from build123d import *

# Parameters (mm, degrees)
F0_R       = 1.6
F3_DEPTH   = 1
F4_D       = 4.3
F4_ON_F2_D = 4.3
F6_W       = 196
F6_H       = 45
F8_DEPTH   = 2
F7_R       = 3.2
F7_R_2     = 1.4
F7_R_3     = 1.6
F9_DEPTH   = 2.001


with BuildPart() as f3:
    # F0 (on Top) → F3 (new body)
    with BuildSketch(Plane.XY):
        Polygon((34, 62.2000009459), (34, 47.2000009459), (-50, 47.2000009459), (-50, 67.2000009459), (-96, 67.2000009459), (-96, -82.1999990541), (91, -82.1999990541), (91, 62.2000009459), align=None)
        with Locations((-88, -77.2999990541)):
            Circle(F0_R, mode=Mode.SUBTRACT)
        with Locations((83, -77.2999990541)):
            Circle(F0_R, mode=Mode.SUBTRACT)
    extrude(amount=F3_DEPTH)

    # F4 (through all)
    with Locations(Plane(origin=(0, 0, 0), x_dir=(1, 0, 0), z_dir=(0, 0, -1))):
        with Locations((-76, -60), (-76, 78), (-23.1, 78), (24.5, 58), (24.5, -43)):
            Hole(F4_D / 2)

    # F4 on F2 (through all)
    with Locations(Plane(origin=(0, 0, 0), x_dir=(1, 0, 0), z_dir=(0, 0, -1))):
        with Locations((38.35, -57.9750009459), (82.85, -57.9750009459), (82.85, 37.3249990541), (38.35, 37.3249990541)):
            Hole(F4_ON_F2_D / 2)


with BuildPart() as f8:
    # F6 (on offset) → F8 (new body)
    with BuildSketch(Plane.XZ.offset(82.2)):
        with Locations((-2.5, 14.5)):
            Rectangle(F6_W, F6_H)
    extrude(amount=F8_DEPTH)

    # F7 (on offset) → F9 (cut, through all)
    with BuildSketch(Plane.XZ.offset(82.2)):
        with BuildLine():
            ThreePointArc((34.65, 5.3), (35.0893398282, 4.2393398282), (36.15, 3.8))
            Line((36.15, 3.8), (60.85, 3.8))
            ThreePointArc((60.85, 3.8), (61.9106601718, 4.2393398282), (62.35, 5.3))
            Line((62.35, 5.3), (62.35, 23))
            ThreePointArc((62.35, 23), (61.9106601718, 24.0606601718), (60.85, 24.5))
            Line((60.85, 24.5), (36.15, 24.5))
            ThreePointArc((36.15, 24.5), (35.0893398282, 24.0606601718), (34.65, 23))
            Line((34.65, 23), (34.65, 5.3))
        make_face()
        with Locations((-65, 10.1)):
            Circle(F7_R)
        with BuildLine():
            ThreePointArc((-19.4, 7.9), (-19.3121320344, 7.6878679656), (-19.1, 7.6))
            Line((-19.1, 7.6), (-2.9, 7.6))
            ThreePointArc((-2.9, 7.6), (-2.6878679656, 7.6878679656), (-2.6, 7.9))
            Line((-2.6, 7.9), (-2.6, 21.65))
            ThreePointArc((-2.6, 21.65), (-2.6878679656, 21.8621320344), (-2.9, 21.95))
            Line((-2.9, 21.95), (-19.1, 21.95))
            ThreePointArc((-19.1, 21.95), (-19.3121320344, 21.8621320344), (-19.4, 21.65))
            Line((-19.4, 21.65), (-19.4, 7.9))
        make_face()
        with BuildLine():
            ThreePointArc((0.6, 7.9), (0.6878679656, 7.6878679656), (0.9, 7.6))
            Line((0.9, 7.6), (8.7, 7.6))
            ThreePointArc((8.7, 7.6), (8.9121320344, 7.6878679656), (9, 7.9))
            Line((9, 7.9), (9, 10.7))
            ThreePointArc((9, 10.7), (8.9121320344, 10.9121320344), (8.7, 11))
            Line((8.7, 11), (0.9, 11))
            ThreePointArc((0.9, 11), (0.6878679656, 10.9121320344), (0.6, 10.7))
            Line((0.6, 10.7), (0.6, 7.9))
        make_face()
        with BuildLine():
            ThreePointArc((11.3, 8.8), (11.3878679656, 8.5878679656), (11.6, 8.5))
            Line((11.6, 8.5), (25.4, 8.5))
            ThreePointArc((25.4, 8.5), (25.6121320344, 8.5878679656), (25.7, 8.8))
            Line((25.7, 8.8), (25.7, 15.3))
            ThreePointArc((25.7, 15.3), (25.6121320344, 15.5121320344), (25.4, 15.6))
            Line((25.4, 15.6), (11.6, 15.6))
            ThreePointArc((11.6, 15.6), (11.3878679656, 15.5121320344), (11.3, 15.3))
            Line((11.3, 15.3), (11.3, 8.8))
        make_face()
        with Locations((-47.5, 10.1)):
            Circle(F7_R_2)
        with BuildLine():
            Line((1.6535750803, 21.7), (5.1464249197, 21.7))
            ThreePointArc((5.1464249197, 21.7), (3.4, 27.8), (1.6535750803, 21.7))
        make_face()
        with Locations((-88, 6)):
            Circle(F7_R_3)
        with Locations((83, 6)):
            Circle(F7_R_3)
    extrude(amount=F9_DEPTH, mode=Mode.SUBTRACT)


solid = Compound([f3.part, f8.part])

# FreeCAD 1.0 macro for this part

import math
import FreeCAD as App
import Part
import Sketcher
from FreeCAD import Vector


def add_polygon(sketch, points):
    """Adds a closed chain of lines whose ends are joined by coincident constraints."""
    first, n = sketch.GeometryCount, len(points)
    for a, b in zip(points, points[1:] + points[:1]):
        sketch.addGeometry(Part.LineSegment(App.Vector(*a, 0), App.Vector(*b, 0)), False)
    for i in range(n):
        sketch.addConstraint(Sketcher.Constraint("Coincident", first + i, 2, first + (i + 1) % n, 1))

doc = App.newDocument("Part")
params = doc.addObject("Spreadsheet::Sheet", "Params")
for row, (alias, value) in enumerate([
    ("sketch1_diameter", "3.2 mm"),
    ("sketch1_width", "84 mm"),
    ("sketch1_width2", "46 mm"),
    ("sketch1_width3", "187 mm"),
    ("sketch1_height", "15 mm"),
    ("pad1_length", "1 mm"),
    ("sketch2_diameter", "4.3 mm"),
    ("hole_diameter", "4.3 mm"),
    ("sketch3_diameter", "4.3 mm"),
    ("hole2_diameter", "4.3 mm"),
    ("sketch4_width", "196 mm"),
    ("sketch4_height", "45 mm"),
    ("pad2_length", "2 mm"),
    ("sketch5_diameter", "6.4 mm"),
    ("sketch5_diameter2", "2.8 mm"),
    ("sketch5_diameter3", "3.2 mm"),
    ("sketch5_radius", "1.5 mm"),
    ("sketch5_radius2", "0.3 mm"),
], start=1):
    params.set(f"A{row}", alias)
    params.set(f"B{row}", "=" + value)
    params.setAlias(f"B{row}", alias)

body = doc.addObject("PartDesign::Body", "Body")

# Sketch on XY plane
sketch1 = body.newObject("Sketcher::SketchObject", "Sketch")
sketch1.AttachmentSupport = (doc.getObject("XY_Plane"), [""])
sketch1.MapMode = "FlatFace"
add_polygon(sketch1, [(34, 62.200001), (34, 47.200001), (-50, 47.200001), (-50, 67.200001), (-96, 67.200001), (-96, -82.199999), (91, -82.199999), (91, 62.200001)])  # lines 0-7
sketch1.addGeometry(Part.Circle(Vector(-88, -77.299999, 0), Vector(0, 0, 1), 1.6), False)  # 8
sketch1.addGeometry(Part.Circle(Vector(83, -77.299999, 0), Vector(0, 0, 1), 1.6), False)  # 9
sketch1.addConstraint(Sketcher.Constraint("Vertical", 0))
sketch1.addConstraint(Sketcher.Constraint("Horizontal", 1))
sketch1.addConstraint(Sketcher.Constraint("Vertical", 2))
sketch1.addConstraint(Sketcher.Constraint("Horizontal", 3))
sketch1.addConstraint(Sketcher.Constraint("Vertical", 4))
sketch1.addConstraint(Sketcher.Constraint("Horizontal", 5))
sketch1.addConstraint(Sketcher.Constraint("Vertical", 6))
sketch1.addConstraint(Sketcher.Constraint("Horizontal", 7))
sketch1.addConstraint(Sketcher.Constraint("Equal", 8, 9))
sketch1.addConstraint(Sketcher.Constraint("Horizontal", 8, 3, 9, 3))
sketch1.addConstraint(Sketcher.Constraint("Diameter", 8, 3.2))
sketch1.addConstraint(Sketcher.Constraint("DistanceX", 1, 2, 1, 1, 84.0))
sketch1.addConstraint(Sketcher.Constraint("DistanceX", 3, 2, 3, 1, 46.0))
sketch1.addConstraint(Sketcher.Constraint("DistanceX", 5, 1, 5, 2, 187.0))
sketch1.addConstraint(Sketcher.Constraint("DistanceY", 0, 2, 0, 1, 15.0))
sketch1.addConstraint(Sketcher.Constraint("DistanceY", 2, 1, 2, 2, 20.0))
sketch1.addConstraint(Sketcher.Constraint("DistanceY", 4, 2, 4, 1, 149.4))
sketch1.addConstraint(Sketcher.Constraint("DistanceX", 8, 3, -1, 1, 88.0))
sketch1.addConstraint(Sketcher.Constraint("DistanceX", -1, 1, 9, 3, 83.0))
sketch1.addConstraint(Sketcher.Constraint("DistanceX", -1, 1, 0, 2, 34.0))
sketch1.addConstraint(Sketcher.Constraint("DistanceY", 8, 3, -1, 1, 77.299999))
sketch1.addConstraint(Sketcher.Constraint("DistanceY", -1, 1, 0, 2, 47.200001))
sketch1.setExpression("Constraints[18]", "Params.sketch1_diameter")
sketch1.setExpression("Constraints[19]", "Params.sketch1_width")
sketch1.setExpression("Constraints[20]", "Params.sketch1_width2")
sketch1.setExpression("Constraints[21]", "Params.sketch1_width3")
sketch1.setExpression("Constraints[22]", "Params.sketch1_height")
pad1 = body.newObject("PartDesign::Pad", "Pad")
pad1.Profile = sketch1
pad1.setExpression("Length", "Params.pad1_length")

# Sketch on XY plane
sketch2 = body.newObject("Sketcher::SketchObject", "Sketch001")
sketch2.AttachmentSupport = (doc.getObject("XY_Plane"), [""])
sketch2.MapMode = "FlatFace"
sketch2.addGeometry(Part.Circle(Vector(-76, 60, 0), Vector(0, 0, 1), 2.15), False)
sketch2.addGeometry(Part.Circle(Vector(-76, -78, 0), Vector(0, 0, 1), 2.15), False)
sketch2.addGeometry(Part.Circle(Vector(-23.1, -78, 0), Vector(0, 0, 1), 2.15), False)
sketch2.addGeometry(Part.Circle(Vector(24.5, -58, 0), Vector(0, 0, 1), 2.15), False)
sketch2.addGeometry(Part.Circle(Vector(24.5, 43, 0), Vector(0, 0, 1), 2.15), False)
sketch2.addConstraint(Sketcher.Constraint("Equal", 0, 1))
sketch2.addConstraint(Sketcher.Constraint("Equal", 1, 2))
sketch2.addConstraint(Sketcher.Constraint("Equal", 2, 3))
sketch2.addConstraint(Sketcher.Constraint("Equal", 3, 4))
sketch2.addConstraint(Sketcher.Constraint("Horizontal", 1, 3, 2, 3))
sketch2.addConstraint(Sketcher.Constraint("Vertical", 0, 3, 1, 3))
sketch2.addConstraint(Sketcher.Constraint("Vertical", 3, 3, 4, 3))
sketch2.addConstraint(Sketcher.Constraint("Diameter", 0, 4.3))
sketch2.addConstraint(Sketcher.Constraint("DistanceX", 0, 3, -1, 1, 76.0))
sketch2.addConstraint(Sketcher.Constraint("DistanceY", -1, 1, 0, 3, 60.0))
sketch2.addConstraint(Sketcher.Constraint("DistanceY", 1, 3, -1, 1, 78.0))
sketch2.addConstraint(Sketcher.Constraint("DistanceY", 3, 3, -1, 1, 58.0))
sketch2.addConstraint(Sketcher.Constraint("DistanceY", -1, 1, 4, 3, 43.0))
sketch2.addConstraint(Sketcher.Constraint("DistanceX", 2, 3, -1, 1, 23.1))
sketch2.addConstraint(Sketcher.Constraint("DistanceX", -1, 1, 3, 3, 24.5))
sketch2.setExpression("Constraints[7]", "Params.sketch2_diameter")
doc.recompute()
hole = body.newObject("PartDesign::Hole", "Hole")
hole.Profile = sketch2
hole.ThreadType = "None"
hole.setExpression("Diameter", "Params.hole_diameter")
hole.DepthType = "ThroughAll"
hole.Reversed = True

# Sketch on XY plane
sketch3 = body.newObject("Sketcher::SketchObject", "Sketch002")
sketch3.AttachmentSupport = (doc.getObject("XY_Plane"), [""])
sketch3.MapMode = "FlatFace"
sketch3.addGeometry(Part.Circle(Vector(38.35, 57.975001, 0), Vector(0, 0, 1), 2.15), False)
sketch3.addGeometry(Part.Circle(Vector(82.85, 57.975001, 0), Vector(0, 0, 1), 2.15), False)
sketch3.addGeometry(Part.Circle(Vector(82.85, -37.324999, 0), Vector(0, 0, 1), 2.15), False)
sketch3.addGeometry(Part.Circle(Vector(38.35, -37.324999, 0), Vector(0, 0, 1), 2.15), False)
sketch3.addConstraint(Sketcher.Constraint("Equal", 0, 1))
sketch3.addConstraint(Sketcher.Constraint("Equal", 1, 2))
sketch3.addConstraint(Sketcher.Constraint("Equal", 2, 3))
sketch3.addConstraint(Sketcher.Constraint("Horizontal", 0, 3, 1, 3))
sketch3.addConstraint(Sketcher.Constraint("Horizontal", 2, 3, 3, 3))
sketch3.addConstraint(Sketcher.Constraint("Vertical", 1, 3, 2, 3))
sketch3.addConstraint(Sketcher.Constraint("Vertical", 0, 3, 3, 3))
sketch3.addConstraint(Sketcher.Constraint("Diameter", 0, 4.3))
sketch3.addConstraint(Sketcher.Constraint("DistanceX", 0, 3, 1, 3, 44.5))
sketch3.addConstraint(Sketcher.Constraint("DistanceY", 2, 3, 1, 3, 95.3))
sketch3.addConstraint(Sketcher.Constraint("DistanceX", -1, 1, 0, 3, 38.35))
sketch3.addConstraint(Sketcher.Constraint("DistanceY", -1, 1, 0, 3, 57.975001))
sketch3.setExpression("Constraints[7]", "Params.sketch3_diameter")
doc.recompute()
hole2 = body.newObject("PartDesign::Hole", "Hole001")
hole2.Profile = sketch3
hole2.ThreadType = "None"
hole2.setExpression("Diameter", "Params.hole2_diameter")
hole2.DepthType = "ThroughAll"
hole2.Reversed = True
body2 = doc.addObject("PartDesign::Body", "Body001")

# Sketch on XZ plane
sketch4 = body2.newObject("Sketcher::SketchObject", "Sketch003")
sketch4.AttachmentSupport = (doc.getObject("XZ_Plane001"), [""])
sketch4.MapMode = "FlatFace"
sketch4.AttachmentOffset = App.Placement(Vector(0, 0, 82.2), App.Rotation())
add_polygon(sketch4, [(-100.5, 37), (-100.5, -8), (95.5, -8), (95.5, 37)])  # lines 0-3
sketch4.addConstraint(Sketcher.Constraint("Vertical", 0))
sketch4.addConstraint(Sketcher.Constraint("Horizontal", 1))
sketch4.addConstraint(Sketcher.Constraint("Vertical", 2))
sketch4.addConstraint(Sketcher.Constraint("Horizontal", 3))
sketch4.addConstraint(Sketcher.Constraint("DistanceX", 1, 1, 1, 2, 196.0))
sketch4.addConstraint(Sketcher.Constraint("DistanceY", 0, 2, 0, 1, 45.0))
sketch4.addConstraint(Sketcher.Constraint("DistanceY", 0, 2, -1, 1, 8.0))
sketch4.addConstraint(Sketcher.Constraint("DistanceX", 0, 2, -1, 1, 100.5))
sketch4.setExpression("Constraints[8]", "Params.sketch4_width")
sketch4.setExpression("Constraints[9]", "Params.sketch4_height")
pad2 = body2.newObject("PartDesign::Pad", "Pad001")
pad2.Profile = sketch4
pad2.setExpression("Length", "Params.pad2_length")

# Sketch on XZ plane
sketch5 = body2.newObject("Sketcher::SketchObject", "Sketch004")
sketch5.AttachmentSupport = (doc.getObject("XZ_Plane001"), [""])
sketch5.MapMode = "FlatFace"
sketch5.AttachmentOffset = App.Placement(Vector(0, 0, 82.2), App.Rotation())
sketch5.addGeometry(Part.ArcOfCircle(Part.Circle(Vector(36.15, 5.3, 0), Vector(0, 0, 1), 1.5), math.radians(180), math.radians(270)), False)
sketch5.addGeometry(Part.LineSegment(Vector(36.15, 3.8, 0), Vector(60.85, 3.8, 0)), False)
sketch5.addGeometry(Part.ArcOfCircle(Part.Circle(Vector(60.85, 5.3, 0), Vector(0, 0, 1), 1.5), math.radians(-90), math.radians(0)), False)
sketch5.addGeometry(Part.LineSegment(Vector(62.35, 5.3, 0), Vector(62.35, 23, 0)), False)
sketch5.addGeometry(Part.ArcOfCircle(Part.Circle(Vector(60.85, 23, 0), Vector(0, 0, 1), 1.5), math.radians(0), math.radians(90)), False)
sketch5.addGeometry(Part.LineSegment(Vector(60.85, 24.5, 0), Vector(36.15, 24.5, 0)), False)
sketch5.addGeometry(Part.ArcOfCircle(Part.Circle(Vector(36.15, 23, 0), Vector(0, 0, 1), 1.5), math.radians(90), math.radians(180)), False)
sketch5.addGeometry(Part.LineSegment(Vector(34.65, 23, 0), Vector(34.65, 5.3, 0)), False)
sketch5.addGeometry(Part.Circle(Vector(-65, 10.1, 0), Vector(0, 0, 1), 3.2), False)
sketch5.addGeometry(Part.ArcOfCircle(Part.Circle(Vector(-19.1, 7.9, 0), Vector(0, 0, 1), 0.3), math.radians(180), math.radians(270)), False)
sketch5.addGeometry(Part.LineSegment(Vector(-19.1, 7.6, 0), Vector(-2.9, 7.6, 0)), False)
sketch5.addGeometry(Part.ArcOfCircle(Part.Circle(Vector(-2.9, 7.9, 0), Vector(0, 0, 1), 0.3), math.radians(-90), math.radians(0)), False)
sketch5.addGeometry(Part.LineSegment(Vector(-2.6, 7.9, 0), Vector(-2.6, 21.65, 0)), False)
sketch5.addGeometry(Part.ArcOfCircle(Part.Circle(Vector(-2.9, 21.65, 0), Vector(0, 0, 1), 0.3), math.radians(0), math.radians(90)), False)
sketch5.addGeometry(Part.LineSegment(Vector(-2.9, 21.95, 0), Vector(-19.1, 21.95, 0)), False)
sketch5.addGeometry(Part.ArcOfCircle(Part.Circle(Vector(-19.1, 21.65, 0), Vector(0, 0, 1), 0.3), math.radians(90), math.radians(180)), False)
sketch5.addGeometry(Part.LineSegment(Vector(-19.4, 21.65, 0), Vector(-19.4, 7.9, 0)), False)
sketch5.addGeometry(Part.ArcOfCircle(Part.Circle(Vector(0.9, 7.9, 0), Vector(0, 0, 1), 0.3), math.radians(180), math.radians(270)), False)
sketch5.addGeometry(Part.LineSegment(Vector(0.9, 7.6, 0), Vector(8.7, 7.6, 0)), False)
sketch5.addGeometry(Part.ArcOfCircle(Part.Circle(Vector(8.7, 7.9, 0), Vector(0, 0, 1), 0.3), math.radians(-90), math.radians(0)), False)
sketch5.addGeometry(Part.LineSegment(Vector(9, 7.9, 0), Vector(9, 10.7, 0)), False)
sketch5.addGeometry(Part.ArcOfCircle(Part.Circle(Vector(8.7, 10.7, 0), Vector(0, 0, 1), 0.3), math.radians(0), math.radians(90)), False)
sketch5.addGeometry(Part.LineSegment(Vector(8.7, 11, 0), Vector(0.9, 11, 0)), False)
sketch5.addGeometry(Part.ArcOfCircle(Part.Circle(Vector(0.9, 10.7, 0), Vector(0, 0, 1), 0.3), math.radians(90), math.radians(180)), False)
sketch5.addGeometry(Part.LineSegment(Vector(0.6, 10.7, 0), Vector(0.6, 7.9, 0)), False)
sketch5.addGeometry(Part.ArcOfCircle(Part.Circle(Vector(11.6, 8.8, 0), Vector(0, 0, 1), 0.3), math.radians(180), math.radians(270)), False)
sketch5.addGeometry(Part.LineSegment(Vector(11.6, 8.5, 0), Vector(25.4, 8.5, 0)), False)
sketch5.addGeometry(Part.ArcOfCircle(Part.Circle(Vector(25.4, 8.8, 0), Vector(0, 0, 1), 0.3), math.radians(-90), math.radians(0)), False)
sketch5.addGeometry(Part.LineSegment(Vector(25.7, 8.8, 0), Vector(25.7, 15.3, 0)), False)
sketch5.addGeometry(Part.ArcOfCircle(Part.Circle(Vector(25.4, 15.3, 0), Vector(0, 0, 1), 0.3), math.radians(0), math.radians(90)), False)
sketch5.addGeometry(Part.LineSegment(Vector(25.4, 15.6, 0), Vector(11.6, 15.6, 0)), False)
sketch5.addGeometry(Part.ArcOfCircle(Part.Circle(Vector(11.6, 15.3, 0), Vector(0, 0, 1), 0.3), math.radians(90), math.radians(180)), False)
sketch5.addGeometry(Part.LineSegment(Vector(11.3, 15.3, 0), Vector(11.3, 8.8, 0)), False)
sketch5.addGeometry(Part.Circle(Vector(-47.5, 10.1, 0), Vector(0, 0, 1), 1.4), False)
sketch5.addGeometry(Part.LineSegment(Vector(1.653575, 21.7, 0), Vector(5.146425, 21.7, 0)), False)
sketch5.addGeometry(Part.ArcOfCircle(Part.Circle(Vector(3.4, 24.5, 0), Vector(0, 0, 1), 3.3), math.radians(-58.047254), math.radians(238.047254)), False)
sketch5.addGeometry(Part.Circle(Vector(-88, 6, 0), Vector(0, 0, 1), 1.6), False)
sketch5.addGeometry(Part.Circle(Vector(83, 6, 0), Vector(0, 0, 1), 1.6), False)
sketch5.addConstraint(Sketcher.Constraint("Tangent", 0, 2, 1, 1))
sketch5.addConstraint(Sketcher.Constraint("Tangent", 1, 2, 2, 1))
sketch5.addConstraint(Sketcher.Constraint("Tangent", 2, 2, 3, 1))
sketch5.addConstraint(Sketcher.Constraint("Tangent", 3, 2, 4, 1))
sketch5.addConstraint(Sketcher.Constraint("Tangent", 4, 2, 5, 1))
sketch5.addConstraint(Sketcher.Constraint("Tangent", 5, 2, 6, 1))
sketch5.addConstraint(Sketcher.Constraint("Tangent", 6, 2, 7, 1))
sketch5.addConstraint(Sketcher.Constraint("Tangent", 7, 2, 0, 1))
sketch5.addConstraint(Sketcher.Constraint("Tangent", 9, 2, 10, 1))
sketch5.addConstraint(Sketcher.Constraint("Tangent", 10, 2, 11, 1))
sketch5.addConstraint(Sketcher.Constraint("Tangent", 11, 2, 12, 1))
sketch5.addConstraint(Sketcher.Constraint("Tangent", 12, 2, 13, 1))
sketch5.addConstraint(Sketcher.Constraint("Tangent", 13, 2, 14, 1))
sketch5.addConstraint(Sketcher.Constraint("Tangent", 14, 2, 15, 1))
sketch5.addConstraint(Sketcher.Constraint("Tangent", 15, 2, 16, 1))
sketch5.addConstraint(Sketcher.Constraint("Tangent", 16, 2, 9, 1))
sketch5.addConstraint(Sketcher.Constraint("Tangent", 17, 2, 18, 1))
sketch5.addConstraint(Sketcher.Constraint("Tangent", 18, 2, 19, 1))
sketch5.addConstraint(Sketcher.Constraint("Tangent", 19, 2, 20, 1))
sketch5.addConstraint(Sketcher.Constraint("Tangent", 20, 2, 21, 1))
sketch5.addConstraint(Sketcher.Constraint("Tangent", 21, 2, 22, 1))
sketch5.addConstraint(Sketcher.Constraint("Tangent", 22, 2, 23, 1))
sketch5.addConstraint(Sketcher.Constraint("Tangent", 23, 2, 24, 1))
sketch5.addConstraint(Sketcher.Constraint("Tangent", 24, 2, 17, 1))
sketch5.addConstraint(Sketcher.Constraint("Tangent", 25, 2, 26, 1))
sketch5.addConstraint(Sketcher.Constraint("Tangent", 26, 2, 27, 1))
sketch5.addConstraint(Sketcher.Constraint("Tangent", 27, 2, 28, 1))
sketch5.addConstraint(Sketcher.Constraint("Tangent", 28, 2, 29, 1))
sketch5.addConstraint(Sketcher.Constraint("Tangent", 29, 2, 30, 1))
sketch5.addConstraint(Sketcher.Constraint("Tangent", 30, 2, 31, 1))
sketch5.addConstraint(Sketcher.Constraint("Tangent", 31, 2, 32, 1))
sketch5.addConstraint(Sketcher.Constraint("Tangent", 32, 2, 25, 1))
sketch5.addConstraint(Sketcher.Constraint("Coincident", 34, 1, 35, 2))
sketch5.addConstraint(Sketcher.Constraint("Coincident", 35, 1, 34, 2))
sketch5.addConstraint(Sketcher.Constraint("Horizontal", 1))
sketch5.addConstraint(Sketcher.Constraint("Vertical", 3))
sketch5.addConstraint(Sketcher.Constraint("Horizontal", 5))
sketch5.addConstraint(Sketcher.Constraint("Vertical", 7))
sketch5.addConstraint(Sketcher.Constraint("Horizontal", 10))
sketch5.addConstraint(Sketcher.Constraint("Vertical", 12))
sketch5.addConstraint(Sketcher.Constraint("Horizontal", 14))
sketch5.addConstraint(Sketcher.Constraint("Vertical", 16))
sketch5.addConstraint(Sketcher.Constraint("Horizontal", 18))
sketch5.addConstraint(Sketcher.Constraint("Vertical", 20))
sketch5.addConstraint(Sketcher.Constraint("Horizontal", 22))
sketch5.addConstraint(Sketcher.Constraint("Vertical", 24))
sketch5.addConstraint(Sketcher.Constraint("Horizontal", 26))
sketch5.addConstraint(Sketcher.Constraint("Vertical", 28))
sketch5.addConstraint(Sketcher.Constraint("Horizontal", 30))
sketch5.addConstraint(Sketcher.Constraint("Vertical", 32))
sketch5.addConstraint(Sketcher.Constraint("Horizontal", 34))
sketch5.addConstraint(Sketcher.Constraint("Equal", 0, 2))
sketch5.addConstraint(Sketcher.Constraint("Equal", 2, 4))
sketch5.addConstraint(Sketcher.Constraint("Equal", 4, 6))
sketch5.addConstraint(Sketcher.Constraint("Equal", 9, 11))
sketch5.addConstraint(Sketcher.Constraint("Equal", 11, 13))
sketch5.addConstraint(Sketcher.Constraint("Equal", 13, 15))
sketch5.addConstraint(Sketcher.Constraint("Equal", 15, 17))
sketch5.addConstraint(Sketcher.Constraint("Equal", 17, 19))
sketch5.addConstraint(Sketcher.Constraint("Equal", 19, 21))
sketch5.addConstraint(Sketcher.Constraint("Equal", 21, 23))
sketch5.addConstraint(Sketcher.Constraint("Equal", 23, 25))
sketch5.addConstraint(Sketcher.Constraint("Equal", 25, 27))
sketch5.addConstraint(Sketcher.Constraint("Equal", 27, 29))
sketch5.addConstraint(Sketcher.Constraint("Equal", 29, 31))
sketch5.addConstraint(Sketcher.Constraint("Equal", 36, 37))
sketch5.addConstraint(Sketcher.Constraint("Horizontal", 11, 3, 17, 3))
sketch5.addConstraint(Sketcher.Constraint("Horizontal", 8, 3, 33, 3))
sketch5.addConstraint(Sketcher.Constraint("Horizontal", 36, 3, 37, 3))
sketch5.addConstraint(Sketcher.Constraint("Horizontal", 35, 3, 4, 2))
sketch5.addConstraint(Sketcher.Constraint("Diameter", 8, 6.4))
sketch5.addConstraint(Sketcher.Constraint("Diameter", 33, 2.8))
sketch5.addConstraint(Sketcher.Constraint("Diameter", 36, 3.2))
sketch5.addConstraint(Sketcher.Constraint("Radius", 0, 1.5))
sketch5.addConstraint(Sketcher.Constraint("Radius", 9, 0.3))
sketch5.addConstraint(Sketcher.Constraint("Radius", 35, 3.3))
sketch5.addConstraint(Sketcher.Constraint("DistanceX", 1, 1, 1, 2, 24.7))
sketch5.addConstraint(Sketcher.Constraint("DistanceX", 10, 1, 10, 2, 16.2))
sketch5.addConstraint(Sketcher.Constraint("DistanceX", 18, 1, 18, 2, 7.8))
sketch5.addConstraint(Sketcher.Constraint("DistanceX", 26, 1, 26, 2, 13.8))
sketch5.addConstraint(Sketcher.Constraint("DistanceY", 3, 1, 3, 2, 17.7))
sketch5.addConstraint(Sketcher.Constraint("DistanceY", 20, 1, 20, 2, 2.8))
sketch5.addConstraint(Sketcher.Constraint("DistanceY", 28, 1, 28, 2, 6.5))
sketch5.addConstraint(Sketcher.Constraint("DistanceY", -1, 1, 4, 3, 23.0))
sketch5.addConstraint(Sketcher.Constraint("DistanceX", 8, 3, -1, 1, 65.0))
sketch5.addConstraint(Sketcher.Constraint("DistanceX", 36, 3, -1, 1, 88.0))
sketch5.addConstraint(Sketcher.Constraint("DistanceY", -1, 1, 36, 3, 6.0))
sketch5.addConstraint(Sketcher.Constraint("DistanceX", -1, 1, 37, 3, 83.0))
sketch5.addConstraint(Sketcher.Constraint("DistanceX", -1, 1, 19, 2, 9.0))
sketch5.addConstraint(Sketcher.Constraint("DistanceY", -1, 1, 21, 2, 11.0))
sketch5.addConstraint(Sketcher.Constraint("DistanceX", 9, 3, 17, 3, 20.0))
sketch5.addConstraint(Sketcher.Constraint("DistanceY", 0, 3, 29, 3, 10.0))
sketch5.addConstraint(Sketcher.Constraint("DistanceX", 12, 2, 35, 3, 6.0))
sketch5.addConstraint(Sketcher.Constraint("DistanceY", 12, 1, 12, 2, 13.75))
sketch5.addConstraint(Sketcher.Constraint("DistanceY", -1, 1, 8, 3, 10.1))
sketch5.addConstraint(Sketcher.Constraint("DistanceX", -1, 1, 25, 3, 11.6))
sketch5.addConstraint(Sketcher.Constraint("DistanceX", 33, 3, -1, 1, 47.5))
sketch5.addConstraint(Sketcher.Constraint("DistanceY", -1, 1, 34, 1, 21.7))
sketch5.addConstraint(Sketcher.Constraint("DistanceX", -1, 1, 0, 3, 36.15))
sketch5.setExpression("Constraints[70]", "Params.sketch5_diameter")
sketch5.setExpression("Constraints[71]", "Params.sketch5_diameter2")
sketch5.setExpression("Constraints[72]", "Params.sketch5_diameter3")
sketch5.setExpression("Constraints[73]", "Params.sketch5_radius")
sketch5.setExpression("Constraints[74]", "Params.sketch5_radius2")
pocket1 = body2.newObject("PartDesign::Pocket", "Pocket")
pocket1.Profile = sketch5
pocket1.Type = "ThroughAll"
pocket1.Reversed = True

doc.recompute()
